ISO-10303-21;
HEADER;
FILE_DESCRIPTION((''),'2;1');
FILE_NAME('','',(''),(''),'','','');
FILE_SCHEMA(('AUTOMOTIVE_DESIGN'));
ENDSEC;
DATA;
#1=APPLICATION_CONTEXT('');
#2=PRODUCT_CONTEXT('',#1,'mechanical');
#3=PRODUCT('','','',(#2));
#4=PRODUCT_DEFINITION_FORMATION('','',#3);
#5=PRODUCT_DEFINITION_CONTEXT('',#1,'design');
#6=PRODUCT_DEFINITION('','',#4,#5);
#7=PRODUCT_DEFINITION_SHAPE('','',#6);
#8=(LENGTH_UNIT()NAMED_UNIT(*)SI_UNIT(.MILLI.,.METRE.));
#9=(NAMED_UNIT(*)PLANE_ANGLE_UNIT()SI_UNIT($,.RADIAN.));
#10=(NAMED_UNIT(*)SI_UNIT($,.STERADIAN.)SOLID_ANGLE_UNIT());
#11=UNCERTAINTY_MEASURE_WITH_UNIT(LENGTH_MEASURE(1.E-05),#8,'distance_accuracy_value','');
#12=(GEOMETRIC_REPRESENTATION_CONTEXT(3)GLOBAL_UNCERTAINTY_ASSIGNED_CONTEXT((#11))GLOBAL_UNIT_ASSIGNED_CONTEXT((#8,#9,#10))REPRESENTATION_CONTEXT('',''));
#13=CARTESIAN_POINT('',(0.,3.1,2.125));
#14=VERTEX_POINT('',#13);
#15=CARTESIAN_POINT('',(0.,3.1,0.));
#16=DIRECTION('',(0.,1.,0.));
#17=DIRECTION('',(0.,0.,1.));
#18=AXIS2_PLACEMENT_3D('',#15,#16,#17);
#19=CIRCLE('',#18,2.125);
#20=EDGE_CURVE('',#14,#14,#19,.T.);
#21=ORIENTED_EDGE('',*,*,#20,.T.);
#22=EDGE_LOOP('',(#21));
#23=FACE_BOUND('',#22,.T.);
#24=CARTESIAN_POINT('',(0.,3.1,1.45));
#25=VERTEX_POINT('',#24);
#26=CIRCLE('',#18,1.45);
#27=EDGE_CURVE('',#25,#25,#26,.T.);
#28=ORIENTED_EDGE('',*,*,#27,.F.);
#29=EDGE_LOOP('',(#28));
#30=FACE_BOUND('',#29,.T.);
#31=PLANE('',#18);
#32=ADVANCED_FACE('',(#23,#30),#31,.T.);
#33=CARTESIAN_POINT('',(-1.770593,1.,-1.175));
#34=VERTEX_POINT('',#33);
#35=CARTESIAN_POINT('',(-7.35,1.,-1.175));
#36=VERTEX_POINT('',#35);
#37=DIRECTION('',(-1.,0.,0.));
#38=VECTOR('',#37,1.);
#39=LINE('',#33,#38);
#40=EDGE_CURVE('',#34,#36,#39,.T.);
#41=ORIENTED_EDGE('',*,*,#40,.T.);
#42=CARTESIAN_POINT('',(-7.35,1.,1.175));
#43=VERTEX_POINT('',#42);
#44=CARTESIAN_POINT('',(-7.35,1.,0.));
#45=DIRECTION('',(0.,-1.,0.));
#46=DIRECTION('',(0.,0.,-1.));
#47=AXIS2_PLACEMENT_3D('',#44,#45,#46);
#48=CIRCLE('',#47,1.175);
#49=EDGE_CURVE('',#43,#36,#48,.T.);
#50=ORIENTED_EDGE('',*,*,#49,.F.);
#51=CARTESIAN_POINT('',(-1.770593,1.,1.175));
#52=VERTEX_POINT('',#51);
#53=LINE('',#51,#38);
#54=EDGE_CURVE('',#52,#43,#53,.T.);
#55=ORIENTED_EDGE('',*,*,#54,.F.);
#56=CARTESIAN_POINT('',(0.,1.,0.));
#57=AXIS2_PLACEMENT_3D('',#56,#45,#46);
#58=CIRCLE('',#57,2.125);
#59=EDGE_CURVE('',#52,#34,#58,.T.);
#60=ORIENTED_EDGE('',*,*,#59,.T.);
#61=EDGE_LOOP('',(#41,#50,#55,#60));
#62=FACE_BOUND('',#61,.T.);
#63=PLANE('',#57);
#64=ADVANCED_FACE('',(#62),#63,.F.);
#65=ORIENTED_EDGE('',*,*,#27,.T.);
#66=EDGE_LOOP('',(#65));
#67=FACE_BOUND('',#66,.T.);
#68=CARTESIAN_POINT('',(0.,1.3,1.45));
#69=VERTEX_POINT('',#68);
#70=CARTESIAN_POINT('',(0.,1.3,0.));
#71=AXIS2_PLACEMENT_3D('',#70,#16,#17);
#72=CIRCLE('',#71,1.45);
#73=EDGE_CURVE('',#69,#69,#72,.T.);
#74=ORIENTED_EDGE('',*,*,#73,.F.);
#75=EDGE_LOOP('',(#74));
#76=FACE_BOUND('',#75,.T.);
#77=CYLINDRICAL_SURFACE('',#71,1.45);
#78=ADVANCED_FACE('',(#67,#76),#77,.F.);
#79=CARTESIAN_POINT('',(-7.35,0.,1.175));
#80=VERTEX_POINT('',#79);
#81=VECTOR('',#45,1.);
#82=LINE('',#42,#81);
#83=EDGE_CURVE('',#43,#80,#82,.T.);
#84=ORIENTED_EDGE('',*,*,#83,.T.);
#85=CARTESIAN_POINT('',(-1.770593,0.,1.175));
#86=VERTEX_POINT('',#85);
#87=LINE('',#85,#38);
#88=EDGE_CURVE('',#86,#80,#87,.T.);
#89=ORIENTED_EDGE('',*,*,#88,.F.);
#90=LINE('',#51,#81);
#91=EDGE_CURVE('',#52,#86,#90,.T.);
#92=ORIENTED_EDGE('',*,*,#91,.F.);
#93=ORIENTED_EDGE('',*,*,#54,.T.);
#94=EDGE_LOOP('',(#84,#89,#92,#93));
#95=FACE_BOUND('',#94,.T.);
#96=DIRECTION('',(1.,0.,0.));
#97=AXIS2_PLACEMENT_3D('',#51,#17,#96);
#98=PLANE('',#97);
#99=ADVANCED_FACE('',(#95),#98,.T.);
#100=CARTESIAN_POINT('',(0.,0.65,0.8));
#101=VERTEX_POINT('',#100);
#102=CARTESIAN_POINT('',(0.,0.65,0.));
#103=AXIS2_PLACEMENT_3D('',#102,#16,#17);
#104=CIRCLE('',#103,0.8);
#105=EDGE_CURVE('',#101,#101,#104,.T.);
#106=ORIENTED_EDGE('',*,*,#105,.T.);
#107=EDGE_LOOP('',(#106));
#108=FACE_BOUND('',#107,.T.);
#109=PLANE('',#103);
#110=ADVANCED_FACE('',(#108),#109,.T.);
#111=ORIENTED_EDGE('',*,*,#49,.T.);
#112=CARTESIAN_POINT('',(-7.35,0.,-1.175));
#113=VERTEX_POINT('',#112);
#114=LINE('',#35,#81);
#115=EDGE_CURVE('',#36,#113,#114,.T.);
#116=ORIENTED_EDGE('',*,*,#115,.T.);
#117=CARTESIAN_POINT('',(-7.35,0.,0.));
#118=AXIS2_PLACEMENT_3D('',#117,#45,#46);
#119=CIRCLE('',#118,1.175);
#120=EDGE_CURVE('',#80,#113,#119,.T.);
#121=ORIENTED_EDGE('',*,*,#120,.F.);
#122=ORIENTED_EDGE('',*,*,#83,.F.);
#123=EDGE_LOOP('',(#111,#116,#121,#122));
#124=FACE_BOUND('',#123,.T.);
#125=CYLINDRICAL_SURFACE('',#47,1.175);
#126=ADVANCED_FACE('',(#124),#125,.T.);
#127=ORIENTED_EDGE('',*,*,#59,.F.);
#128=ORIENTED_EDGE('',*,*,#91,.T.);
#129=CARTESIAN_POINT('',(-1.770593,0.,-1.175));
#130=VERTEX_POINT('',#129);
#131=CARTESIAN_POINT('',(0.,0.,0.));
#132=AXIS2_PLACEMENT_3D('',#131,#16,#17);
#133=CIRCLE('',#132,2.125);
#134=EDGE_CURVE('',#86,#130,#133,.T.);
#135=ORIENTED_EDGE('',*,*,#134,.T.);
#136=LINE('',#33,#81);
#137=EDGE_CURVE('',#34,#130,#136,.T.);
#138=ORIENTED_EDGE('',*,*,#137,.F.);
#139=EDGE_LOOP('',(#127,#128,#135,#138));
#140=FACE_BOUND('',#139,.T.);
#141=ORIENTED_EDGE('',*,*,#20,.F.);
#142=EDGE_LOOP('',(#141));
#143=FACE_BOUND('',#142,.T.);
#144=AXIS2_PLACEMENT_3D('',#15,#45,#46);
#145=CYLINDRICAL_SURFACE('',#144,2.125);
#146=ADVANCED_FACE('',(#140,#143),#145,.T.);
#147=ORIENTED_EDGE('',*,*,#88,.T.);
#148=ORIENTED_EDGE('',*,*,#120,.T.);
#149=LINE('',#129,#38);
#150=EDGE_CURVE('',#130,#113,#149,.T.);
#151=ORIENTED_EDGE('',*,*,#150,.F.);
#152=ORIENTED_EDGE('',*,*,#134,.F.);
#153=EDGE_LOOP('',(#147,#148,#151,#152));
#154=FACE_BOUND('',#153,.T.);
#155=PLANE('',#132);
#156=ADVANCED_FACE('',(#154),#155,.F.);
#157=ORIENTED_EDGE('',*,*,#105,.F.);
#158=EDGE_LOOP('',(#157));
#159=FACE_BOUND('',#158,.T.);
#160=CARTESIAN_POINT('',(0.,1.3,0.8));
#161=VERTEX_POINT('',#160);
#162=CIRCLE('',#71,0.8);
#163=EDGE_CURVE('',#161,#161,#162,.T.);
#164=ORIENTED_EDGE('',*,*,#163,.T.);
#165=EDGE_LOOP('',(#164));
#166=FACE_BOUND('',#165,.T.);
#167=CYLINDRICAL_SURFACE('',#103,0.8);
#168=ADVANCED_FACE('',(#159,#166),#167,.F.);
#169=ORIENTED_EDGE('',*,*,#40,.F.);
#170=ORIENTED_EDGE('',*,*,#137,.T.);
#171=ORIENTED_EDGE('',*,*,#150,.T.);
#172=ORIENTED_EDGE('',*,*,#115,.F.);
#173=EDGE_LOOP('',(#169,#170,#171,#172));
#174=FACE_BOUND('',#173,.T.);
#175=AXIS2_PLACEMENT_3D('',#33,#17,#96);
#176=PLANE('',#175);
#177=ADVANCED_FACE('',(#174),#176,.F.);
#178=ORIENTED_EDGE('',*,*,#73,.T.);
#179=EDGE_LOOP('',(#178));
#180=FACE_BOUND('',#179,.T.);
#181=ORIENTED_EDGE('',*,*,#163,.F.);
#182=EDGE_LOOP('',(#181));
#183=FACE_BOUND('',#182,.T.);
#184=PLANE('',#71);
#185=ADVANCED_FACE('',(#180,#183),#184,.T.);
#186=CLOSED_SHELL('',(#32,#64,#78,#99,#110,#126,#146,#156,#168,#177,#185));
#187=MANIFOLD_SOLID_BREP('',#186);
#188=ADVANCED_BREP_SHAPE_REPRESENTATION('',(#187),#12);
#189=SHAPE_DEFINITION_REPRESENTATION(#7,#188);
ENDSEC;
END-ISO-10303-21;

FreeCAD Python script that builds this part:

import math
import FreeCAD as App
import Part
import Sketcher

V = App.Vector
Q = App.Units.Quantity

doc = App.newDocument("Part")
body = doc.addObject("PartDesign::Body", "Body")

# Sketch on XZ plane
sketch1 = doc.addObject("Sketcher::SketchObject", "Sketch")
body.addObject(sketch1)
sketch1.AttachmentSupport = (doc.XZ_Plane, [""])
sketch1.MapMode = "FlatFace"
sketch1.addGeometry(Part.Circle(V(0, 0, 0), V(0, 0, 1), 2.1), False)
sketch1.addConstraint([
    Sketcher.Constraint("Coincident", 0, 3, -1, 1),
    Sketcher.Constraint("Diameter", 0, Q("4.25 mm")),
])
pad1 = doc.addObject("PartDesign::Pad", "Pad")
body.addObject(pad1)
pad1.Profile = sketch1
pad1.Length = 3.1
pad1.Reversed = True

# Sketch on XZ plane
sketch2 = doc.addObject("Sketcher::SketchObject", "Sketch001")
body.addObject(sketch2)
sketch2.AttachmentSupport = (doc.XZ_Plane, [""])
sketch2.MapMode = "FlatFace"
sketch2.AttachmentOffset = App.Placement(V(0, 0, -3.1), App.Rotation())
sketch2.addGeometry(Part.Circle(V(0, 0, 0), V(0, 0, 1), 1.4), False)
sketch2.addConstraint([
    Sketcher.Constraint("Coincident", 0, 3, -1, 1),
    Sketcher.Constraint("Diameter", 0, Q("2.9 mm")),
])
pocket1 = doc.addObject("PartDesign::Pocket", "Pocket")
body.addObject(pocket1)
pocket1.Profile = sketch2
pocket1.Length = 1.8
pocket1.Reversed = True

# Sketch on XZ plane
sketch3 = doc.addObject("Sketcher::SketchObject", "Sketch002")
body.addObject(sketch3)
sketch3.AttachmentSupport = (doc.XZ_Plane, [""])
sketch3.MapMode = "FlatFace"
sketch3.AttachmentOffset = App.Placement(V(0, 0, -1.3), App.Rotation())
sketch3.addGeometry(Part.Circle(V(0, 0, 0), V(0, 0, 1), 0.8), False)
sketch3.addConstraint([
    Sketcher.Constraint("Coincident", 0, 3, -1, 1),
    Sketcher.Constraint("Diameter", 0, Q("1.6 mm")),
])
pocket2 = doc.addObject("PartDesign::Pocket", "Pocket001")
body.addObject(pocket2)
pocket2.Profile = sketch3
pocket2.Length = 0.65
pocket2.Reversed = True

# Sketch on XZ plane
sketch4 = doc.addObject("Sketcher::SketchObject", "Sketch003")
body.addObject(sketch4)
sketch4.AttachmentSupport = (doc.XZ_Plane, [""])
sketch4.MapMode = "FlatFace"
sketch4.addGeometry([
    Part.LineSegment(V(-7.3, 1.2, 0), V(-1.8, 1.2, 0)),
    Part.ArcOfCircle(Part.Circle(V(0, 0, 0), V(0, 0, 1), 2.1), math.radians(146), math.radians(214)),
    Part.LineSegment(V(-1.8, -1.2, 0), V(-7.3, -1.2, 0)),
    Part.ArcOfCircle(Part.Circle(V(-7.3, 0, 0), V(0, 0, 1), 1.2), math.radians(90), math.radians(270)),
], False)
sketch4.addConstraint([
    Sketcher.Constraint("Coincident", 0, 2, 1, 1),
    Sketcher.Constraint("Coincident", 1, 2, 2, 1),
    Sketcher.Constraint("Tangent", 2, 2, 3, 2),
    Sketcher.Constraint("Tangent", 3, 1, 0, 1),
    Sketcher.Constraint("Horizontal", 0),
    Sketcher.Constraint("Horizontal", 2),
    Sketcher.Constraint("Coincident", 1, 3, -1, 1),
    Sketcher.Constraint("PointOnObject", 3, 3, -1),
    Sketcher.Constraint("Radius", 1, Q("2.125 mm")),
    Sketcher.Constraint("Radius", 3, Q("1.175 mm")),
    Sketcher.Constraint("DistanceX", 3, 3, -1, 1, Q("7.35 mm")),
])
pad2 = doc.addObject("PartDesign::Pad", "Pad001")
body.addObject(pad2)
pad2.Profile = sketch4
pad2.Length = 1
pad2.Reversed = True

doc.recompute()
